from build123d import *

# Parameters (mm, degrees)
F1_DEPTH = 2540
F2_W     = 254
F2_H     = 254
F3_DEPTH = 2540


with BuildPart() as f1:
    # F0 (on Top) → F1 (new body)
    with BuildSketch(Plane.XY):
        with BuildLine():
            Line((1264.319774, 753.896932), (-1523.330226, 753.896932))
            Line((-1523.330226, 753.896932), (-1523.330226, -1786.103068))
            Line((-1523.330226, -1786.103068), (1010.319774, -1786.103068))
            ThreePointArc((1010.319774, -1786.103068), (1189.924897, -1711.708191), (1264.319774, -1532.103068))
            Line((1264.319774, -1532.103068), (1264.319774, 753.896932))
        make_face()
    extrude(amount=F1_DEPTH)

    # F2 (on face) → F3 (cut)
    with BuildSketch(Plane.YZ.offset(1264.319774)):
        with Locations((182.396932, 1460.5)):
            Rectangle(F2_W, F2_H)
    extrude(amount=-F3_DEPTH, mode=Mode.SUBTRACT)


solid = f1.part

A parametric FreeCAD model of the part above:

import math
import FreeCAD as App
import Part
import Sketcher
Q = App.Units.Quantity


def add_polygon(sketch, points):
    """Adds a closed chain of lines whose ends are joined by coincident constraints."""
    first, n = sketch.GeometryCount, len(points)
    for a, b in zip(points, points[1:] + points[:1]):
        sketch.addGeometry(Part.LineSegment(App.Vector(*a, 0), App.Vector(*b, 0)), False)
    for i in range(n):
        sketch.addConstraint(Sketcher.Constraint("Coincident", first + i, 2, first + (i + 1) % n, 1))

doc = App.newDocument("Part")
body = doc.addObject("PartDesign::Body", "Body")

# Sketch on XY plane
sketch1 = body.newObject("Sketcher::SketchObject", "Sketch")
sketch1.AttachmentSupport = (doc.getObject("XY_Plane"), [""])
sketch1.MapMode = "FlatFace"
sketch1.addGeometry(Part.LineSegment(App.Vector(1264, 754, 0), App.Vector(-1523, 754, 0)), False)
sketch1.addGeometry(Part.LineSegment(App.Vector(-1523, 754, 0), App.Vector(-1523, -1786, 0)), False)
sketch1.addGeometry(Part.LineSegment(App.Vector(-1523, -1786, 0), App.Vector(1010, -1786, 0)), False)
sketch1.addGeometry(Part.ArcOfCircle(Part.Circle(App.Vector(1010, -1532, 0), App.Vector(0, 0, 1), 254), math.radians(-90), math.radians(0)), False)
sketch1.addGeometry(Part.LineSegment(App.Vector(1264, -1532, 0), App.Vector(1264, 754, 0)), False)
sketch1.addConstraint(Sketcher.Constraint("Coincident", 0, 2, 1, 1))
sketch1.addConstraint(Sketcher.Constraint("Coincident", 1, 2, 2, 1))
sketch1.addConstraint(Sketcher.Constraint("Tangent", 2, 2, 3, 1))
sketch1.addConstraint(Sketcher.Constraint("Tangent", 3, 2, 4, 1))
sketch1.addConstraint(Sketcher.Constraint("Coincident", 4, 2, 0, 1))
sketch1.addConstraint(Sketcher.Constraint("Horizontal", 0))
sketch1.addConstraint(Sketcher.Constraint("Vertical", 1))
sketch1.addConstraint(Sketcher.Constraint("Horizontal", 2))
sketch1.addConstraint(Sketcher.Constraint("Vertical", 4))
sketch1.addConstraint(Sketcher.Constraint("Radius", 3, Q("9.9999999 in")))
sketch1.addConstraint(Sketcher.Constraint("DistanceY", 1, 2, 1, 1, Q("100 in")))
sketch1.addConstraint(Sketcher.Constraint("DistanceX", 0, 2, 0, 1, Q("109.75 in")))
sketch1.addConstraint(Sketcher.Constraint("DistanceY", 3, 3, -1, 1, 1532.10307))
sketch1.addConstraint(Sketcher.Constraint("DistanceX", -1, 1, 3, 3, 1010.319776))
pad1 = body.newObject("PartDesign::Pad", "Pad")
pad1.Profile = sketch1
pad1.Length = Q("100 in")

# Sketch on YZ plane
sketch2 = body.newObject("Sketcher::SketchObject", "Sketch001")
sketch2.AttachmentSupport = (doc.getObject("YZ_Plane"), [""])
sketch2.MapMode = "FlatFace"
sketch2.AttachmentOffset = App.Placement(App.Vector(0, 0, 1264.319774), App.Rotation())
add_polygon(sketch2, [(55, 1588), (55, 1334), (309, 1334), (309, 1588)])  # lines 0-3
sketch2.addConstraint(Sketcher.Constraint("Vertical", 0))
sketch2.addConstraint(Sketcher.Constraint("Horizontal", 1))
sketch2.addConstraint(Sketcher.Constraint("Vertical", 2))
sketch2.addConstraint(Sketcher.Constraint("Horizontal", 3))
sketch2.addConstraint(Sketcher.Constraint("Equal", 3, 0))
sketch2.addConstraint(Sketcher.Constraint("DistanceX", 1, 1, 1, 2, Q("10 in")))
sketch2.addConstraint(Sketcher.Constraint("DistanceY", -1, 1, 0, 2, Q("52.5 in")))
sketch2.addConstraint(Sketcher.Constraint("DistanceX", -1, 1, 1, 2, 309.396932))
pocket1 = body.newObject("PartDesign::Pocket", "Pocket")
pocket1.Profile = sketch2
pocket1.Length = Q("100 in")

doc.recompute()
